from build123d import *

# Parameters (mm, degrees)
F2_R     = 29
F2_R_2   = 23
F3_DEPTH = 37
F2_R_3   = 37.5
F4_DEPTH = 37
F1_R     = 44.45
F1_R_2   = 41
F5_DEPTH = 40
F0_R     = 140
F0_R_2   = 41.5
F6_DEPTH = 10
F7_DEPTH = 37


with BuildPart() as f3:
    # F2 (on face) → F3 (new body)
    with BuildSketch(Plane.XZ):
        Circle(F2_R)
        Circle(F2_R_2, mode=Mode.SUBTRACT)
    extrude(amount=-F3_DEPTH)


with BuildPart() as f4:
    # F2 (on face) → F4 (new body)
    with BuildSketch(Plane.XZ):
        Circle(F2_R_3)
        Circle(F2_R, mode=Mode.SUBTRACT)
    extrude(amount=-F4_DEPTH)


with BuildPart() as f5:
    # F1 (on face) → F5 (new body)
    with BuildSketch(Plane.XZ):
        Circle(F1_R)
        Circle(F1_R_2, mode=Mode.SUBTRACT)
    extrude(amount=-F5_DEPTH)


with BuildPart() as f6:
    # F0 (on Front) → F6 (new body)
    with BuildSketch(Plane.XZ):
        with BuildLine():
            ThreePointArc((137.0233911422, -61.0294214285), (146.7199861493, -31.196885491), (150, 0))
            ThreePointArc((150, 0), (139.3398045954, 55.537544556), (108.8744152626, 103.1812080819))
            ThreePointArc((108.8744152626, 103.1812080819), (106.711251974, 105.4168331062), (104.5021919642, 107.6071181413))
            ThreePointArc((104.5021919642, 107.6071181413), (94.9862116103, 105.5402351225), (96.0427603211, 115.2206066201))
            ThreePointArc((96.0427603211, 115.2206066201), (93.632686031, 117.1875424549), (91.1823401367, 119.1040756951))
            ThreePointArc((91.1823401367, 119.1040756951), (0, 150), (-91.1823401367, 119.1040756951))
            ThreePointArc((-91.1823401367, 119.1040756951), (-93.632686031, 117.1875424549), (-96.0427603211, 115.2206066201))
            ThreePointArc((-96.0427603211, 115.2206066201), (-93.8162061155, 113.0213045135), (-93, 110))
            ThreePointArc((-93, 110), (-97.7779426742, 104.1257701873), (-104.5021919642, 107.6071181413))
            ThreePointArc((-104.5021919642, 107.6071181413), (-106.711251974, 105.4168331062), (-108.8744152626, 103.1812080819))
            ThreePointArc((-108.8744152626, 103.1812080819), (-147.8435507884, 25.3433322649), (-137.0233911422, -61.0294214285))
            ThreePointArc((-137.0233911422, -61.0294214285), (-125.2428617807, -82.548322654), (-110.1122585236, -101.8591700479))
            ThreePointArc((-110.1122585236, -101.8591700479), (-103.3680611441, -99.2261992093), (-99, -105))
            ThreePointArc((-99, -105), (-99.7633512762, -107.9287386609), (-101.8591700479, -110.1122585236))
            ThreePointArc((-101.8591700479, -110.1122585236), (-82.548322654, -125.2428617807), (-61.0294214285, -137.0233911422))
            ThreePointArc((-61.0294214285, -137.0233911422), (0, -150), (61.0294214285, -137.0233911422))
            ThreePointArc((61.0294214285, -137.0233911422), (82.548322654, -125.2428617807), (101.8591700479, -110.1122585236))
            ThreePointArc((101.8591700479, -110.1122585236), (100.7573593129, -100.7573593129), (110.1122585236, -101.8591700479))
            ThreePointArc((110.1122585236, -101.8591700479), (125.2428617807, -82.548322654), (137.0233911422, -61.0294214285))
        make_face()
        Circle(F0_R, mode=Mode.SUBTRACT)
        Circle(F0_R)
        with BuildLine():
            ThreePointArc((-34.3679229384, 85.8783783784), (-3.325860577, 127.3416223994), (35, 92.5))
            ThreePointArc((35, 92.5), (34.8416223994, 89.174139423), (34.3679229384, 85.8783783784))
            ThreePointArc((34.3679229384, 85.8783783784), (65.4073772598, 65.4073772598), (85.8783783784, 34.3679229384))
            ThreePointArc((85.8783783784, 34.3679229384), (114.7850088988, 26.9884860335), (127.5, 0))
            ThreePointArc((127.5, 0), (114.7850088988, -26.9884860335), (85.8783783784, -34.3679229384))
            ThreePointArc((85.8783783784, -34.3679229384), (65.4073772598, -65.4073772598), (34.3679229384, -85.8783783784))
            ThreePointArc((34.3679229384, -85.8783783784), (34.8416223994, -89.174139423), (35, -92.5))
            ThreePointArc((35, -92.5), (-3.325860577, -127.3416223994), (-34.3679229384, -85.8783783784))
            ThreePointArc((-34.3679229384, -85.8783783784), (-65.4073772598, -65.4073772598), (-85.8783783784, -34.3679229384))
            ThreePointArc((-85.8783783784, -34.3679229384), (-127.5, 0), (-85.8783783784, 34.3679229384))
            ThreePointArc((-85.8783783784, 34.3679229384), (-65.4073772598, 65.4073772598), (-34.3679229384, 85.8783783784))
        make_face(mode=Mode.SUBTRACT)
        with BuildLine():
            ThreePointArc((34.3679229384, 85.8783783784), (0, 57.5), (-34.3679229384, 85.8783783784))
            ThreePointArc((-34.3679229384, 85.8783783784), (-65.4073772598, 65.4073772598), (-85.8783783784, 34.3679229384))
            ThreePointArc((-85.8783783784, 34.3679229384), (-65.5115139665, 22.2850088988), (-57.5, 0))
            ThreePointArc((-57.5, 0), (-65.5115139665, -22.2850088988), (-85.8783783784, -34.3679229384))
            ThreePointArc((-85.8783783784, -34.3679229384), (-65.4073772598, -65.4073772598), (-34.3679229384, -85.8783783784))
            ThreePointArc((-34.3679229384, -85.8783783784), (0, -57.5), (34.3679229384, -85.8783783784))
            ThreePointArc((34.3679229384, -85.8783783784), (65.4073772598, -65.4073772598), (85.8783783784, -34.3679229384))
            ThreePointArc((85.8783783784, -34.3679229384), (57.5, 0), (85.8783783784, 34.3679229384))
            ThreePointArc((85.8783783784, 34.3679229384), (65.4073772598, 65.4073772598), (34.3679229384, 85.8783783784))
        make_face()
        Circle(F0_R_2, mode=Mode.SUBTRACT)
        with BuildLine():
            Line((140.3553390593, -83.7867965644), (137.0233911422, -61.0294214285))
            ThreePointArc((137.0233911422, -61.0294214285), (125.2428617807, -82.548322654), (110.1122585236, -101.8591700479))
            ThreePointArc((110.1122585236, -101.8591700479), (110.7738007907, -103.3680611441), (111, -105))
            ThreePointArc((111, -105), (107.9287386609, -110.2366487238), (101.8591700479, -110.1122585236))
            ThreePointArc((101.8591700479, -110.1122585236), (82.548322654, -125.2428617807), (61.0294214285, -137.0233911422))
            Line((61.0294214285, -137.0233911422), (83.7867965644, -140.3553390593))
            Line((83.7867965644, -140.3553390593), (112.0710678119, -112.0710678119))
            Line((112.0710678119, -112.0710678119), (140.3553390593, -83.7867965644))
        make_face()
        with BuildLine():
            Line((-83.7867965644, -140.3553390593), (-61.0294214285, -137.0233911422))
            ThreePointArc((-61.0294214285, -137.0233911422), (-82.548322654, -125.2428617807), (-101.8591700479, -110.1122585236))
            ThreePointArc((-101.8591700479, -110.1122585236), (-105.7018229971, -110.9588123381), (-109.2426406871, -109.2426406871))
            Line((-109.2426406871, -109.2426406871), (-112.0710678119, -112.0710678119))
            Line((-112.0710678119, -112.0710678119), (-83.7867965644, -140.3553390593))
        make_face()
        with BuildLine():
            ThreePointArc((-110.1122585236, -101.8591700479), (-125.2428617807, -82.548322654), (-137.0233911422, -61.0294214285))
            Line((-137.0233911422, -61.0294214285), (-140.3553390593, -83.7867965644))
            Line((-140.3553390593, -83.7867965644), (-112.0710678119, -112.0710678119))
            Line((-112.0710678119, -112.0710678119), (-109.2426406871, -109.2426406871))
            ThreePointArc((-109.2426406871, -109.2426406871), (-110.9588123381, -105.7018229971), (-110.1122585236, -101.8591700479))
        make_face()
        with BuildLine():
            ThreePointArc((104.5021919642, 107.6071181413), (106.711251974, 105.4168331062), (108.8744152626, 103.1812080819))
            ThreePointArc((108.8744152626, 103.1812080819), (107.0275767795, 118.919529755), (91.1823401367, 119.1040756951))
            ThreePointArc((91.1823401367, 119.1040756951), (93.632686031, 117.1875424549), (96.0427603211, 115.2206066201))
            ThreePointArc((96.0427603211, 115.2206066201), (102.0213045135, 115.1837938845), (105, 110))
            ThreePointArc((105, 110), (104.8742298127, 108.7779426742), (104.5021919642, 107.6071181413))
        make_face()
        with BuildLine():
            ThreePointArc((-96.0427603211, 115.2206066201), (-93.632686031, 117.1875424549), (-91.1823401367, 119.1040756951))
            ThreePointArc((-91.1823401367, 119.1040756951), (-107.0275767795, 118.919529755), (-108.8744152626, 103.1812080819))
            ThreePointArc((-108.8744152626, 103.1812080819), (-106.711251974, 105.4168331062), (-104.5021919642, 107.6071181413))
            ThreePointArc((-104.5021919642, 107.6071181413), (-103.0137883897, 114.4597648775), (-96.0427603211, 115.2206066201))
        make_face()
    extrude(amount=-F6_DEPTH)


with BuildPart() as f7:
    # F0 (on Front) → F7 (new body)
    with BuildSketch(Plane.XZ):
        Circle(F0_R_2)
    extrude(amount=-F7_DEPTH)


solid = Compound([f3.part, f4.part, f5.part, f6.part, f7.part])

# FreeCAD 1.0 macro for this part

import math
import FreeCAD as App
import Part
import Sketcher
from FreeCAD import Vector

doc = App.newDocument("Part")
body = doc.addObject("PartDesign::Body", "Body")

# Sketch on XZ plane
sketch1 = doc.addObject("Sketcher::SketchObject", "Sketch")
body.addObject(sketch1)
sketch1.AttachmentSupport = (doc.XZ_Plane, [""])
sketch1.MapMode = "FlatFace"
sketch1.addGeometry(Part.Circle(Vector(0, 0, 0), Vector(0, 0, 1), 29), False)
sketch1.addGeometry(Part.Circle(Vector(0, 0, 0), Vector(0, 0, 1), 23), False)
sketch1.addConstraint(Sketcher.Constraint("Coincident", 0, 3, -1, 1))
sketch1.addConstraint(Sketcher.Constraint("Coincident", 1, 3, -1, 1))
sketch1.addConstraint(Sketcher.Constraint("Diameter", 0, 58.0))
sketch1.addConstraint(Sketcher.Constraint("Diameter", 1, 46.0))
pad1 = doc.addObject("PartDesign::Pad", "Pad")
body.addObject(pad1)
pad1.Profile = sketch1
pad1.Length = 37
pad1.Reversed = True
body2 = doc.addObject("PartDesign::Body", "Body001")

# Sketch on XZ plane
sketch2 = doc.addObject("Sketcher::SketchObject", "Sketch001")
body2.addObject(sketch2)
sketch2.AttachmentSupport = (doc.getObject("XZ_Plane001"), [""])
sketch2.MapMode = "FlatFace"
sketch2.addGeometry(Part.Circle(Vector(0, 0, 0), Vector(0, 0, 1), 38), False)
sketch2.addGeometry(Part.Circle(Vector(0, 0, 0), Vector(0, 0, 1), 29), False)
sketch2.addConstraint(Sketcher.Constraint("Coincident", 0, 3, -1, 1))
sketch2.addConstraint(Sketcher.Constraint("Coincident", 1, 3, -1, 1))
sketch2.addConstraint(Sketcher.Constraint("Diameter", 0, 75.0))
sketch2.addConstraint(Sketcher.Constraint("Diameter", 1, 58.0))
pad2 = doc.addObject("PartDesign::Pad", "Pad001")
body2.addObject(pad2)
pad2.Profile = sketch2
pad2.Length = 37
pad2.Reversed = True
body3 = doc.addObject("PartDesign::Body", "Body002")

# Sketch on XZ plane
sketch3 = doc.addObject("Sketcher::SketchObject", "Sketch002")
body3.addObject(sketch3)
sketch3.AttachmentSupport = (doc.getObject("XZ_Plane002"), [""])
sketch3.MapMode = "FlatFace"
sketch3.addGeometry(Part.Circle(Vector(0, 0, 0), Vector(0, 0, 1), 44), False)
sketch3.addGeometry(Part.Circle(Vector(0, 0, 0), Vector(0, 0, 1), 41), False)
sketch3.addConstraint(Sketcher.Constraint("Coincident", 0, 3, -1, 1))
sketch3.addConstraint(Sketcher.Constraint("Coincident", 1, 3, -1, 1))
sketch3.addConstraint(Sketcher.Constraint("Diameter", 1, 82.0))
sketch3.addConstraint(Sketcher.Constraint("Diameter", 0, 88.9))
pad3 = doc.addObject("PartDesign::Pad", "Pad002")
body3.addObject(pad3)
pad3.Profile = sketch3
pad3.Length = 40
pad3.Reversed = True
body4 = doc.addObject("PartDesign::Body", "Body003")

# Sketch on XZ plane
sketch4 = doc.addObject("Sketcher::SketchObject", "Sketch003")
body4.addObject(sketch4)
sketch4.AttachmentSupport = (doc.getObject("XZ_Plane003"), [""])
sketch4.MapMode = "FlatFace"
sketch4.addGeometry(Part.ArcOfCircle(Part.Circle(Vector(0, 0, 0), Vector(0, 0, 1), 150), math.radians(-24), math.radians(0)), False)
sketch4.addGeometry(Part.ArcOfCircle(Part.Circle(Vector(0, 0, 0), Vector(0, 0, 1), 150), math.radians(0), math.radians(43)), False)
sketch4.addGeometry(Part.ArcOfCircle(Part.Circle(Vector(99, 110, 0), Vector(0, 0, 1), 12), math.radians(-35), math.radians(131)), False)
sketch4.addGeometry(Part.ArcOfCircle(Part.Circle(Vector(0, 0, 0), Vector(0, 0, 1), 150), math.radians(53), math.radians(127)), False)
sketch4.addGeometry(Part.ArcOfCircle(Part.Circle(Vector(-99, 110, 0), Vector(0, 0, 1), 12), math.radians(49), math.radians(215)), False)
sketch4.addGeometry(Part.ArcOfCircle(Part.Circle(Vector(0, 0, 0), Vector(0, 0, 1), 150), math.radians(137), math.radians(204)), False)
sketch4.addGeometry(Part.LineSegment(Vector(-137, -61, 0), Vector(-140.4, -83.8, 0)), False)
sketch4.addGeometry(Part.LineSegment(Vector(-140.4, -83.8, 0), Vector(-112.1, -112.1, 0)), False)
sketch4.addGeometry(Part.LineSegment(Vector(-112.1, -112.1, 0), Vector(-83.8, -140.4, 0)), False)
sketch4.addGeometry(Part.LineSegment(Vector(-83.8, -140.4, 0), Vector(-61, -137, 0)), False)
sketch4.addGeometry(Part.ArcOfCircle(Part.Circle(Vector(0, 0, 0), Vector(0, 0, 1), 150), math.radians(-114), math.radians(-66)), False)
sketch4.addGeometry(Part.LineSegment(Vector(61, -137, 0), Vector(83.8, -140.4, 0)), False)
sketch4.addGeometry(Part.LineSegment(Vector(83.8, -140.4, 0), Vector(112.1, -112.1, 0)), False)
sketch4.addGeometry(Part.LineSegment(Vector(112.1, -112.1, 0), Vector(140.4, -83.8, 0)), False)
sketch4.addGeometry(Part.LineSegment(Vector(140.4, -83.8, 0), Vector(137, -61, 0)), False)
sketch4.addGeometry(Part.ArcOfCircle(Part.Circle(Vector(-99, 110, 0), Vector(0, 0, 1), 6), math.radians(0), math.radians(60)), False)
sketch4.addGeometry(Part.ArcOfCircle(Part.Circle(Vector(-99, 110, 0), Vector(0, 0, 1), 6), math.radians(-156), math.radians(0)), False)
sketch4.addGeometry(Part.ArcOfCircle(Part.Circle(Vector(-99, 110, 0), Vector(0, 0, 1), 6), math.radians(60), math.radians(204)), False)
sketch4.addGeometry(Part.ArcOfCircle(Part.Circle(Vector(99, 110, 0), Vector(0, 0, 1), 6), math.radians(120), math.radians(336)), False)
sketch4.addGeometry(Part.ArcOfCircle(Part.Circle(Vector(99, 110, 0), Vector(0, 0, 1), 6), math.radians(0), math.radians(120)), False)
sketch4.addGeometry(Part.ArcOfCircle(Part.Circle(Vector(99, 110, 0), Vector(0, 0, 1), 6), math.radians(-24), math.radians(0)), False)
sketch4.addGeometry(Part.ArcOfCircle(Part.Circle(Vector(-105, -105, 0), Vector(0, 0, 1), 6), math.radians(0), math.radians(148)), False)
sketch4.addGeometry(Part.ArcOfCircle(Part.Circle(Vector(-105, -105, 0), Vector(0, 0, 1), 6), math.radians(-58), math.radians(0)), False)
sketch4.addGeometry(Part.ArcOfCircle(Part.Circle(Vector(-105, -105, 0), Vector(0, 0, 1), 6), math.radians(-135), math.radians(-58)), False)
sketch4.addGeometry(Part.ArcOfCircle(Part.Circle(Vector(-105, -105, 0), Vector(0, 0, 1), 6), math.radians(148), math.radians(225)), False)
sketch4.addGeometry(Part.ArcOfCircle(Part.Circle(Vector(105, -105, 0), Vector(0, 0, 1), 6), math.radians(0), math.radians(32)), False)
sketch4.addGeometry(Part.ArcOfCircle(Part.Circle(Vector(105, -105, 0), Vector(0, 0, 1), 6), math.radians(32), math.radians(360)), False)
sketch4.addGeometry(Part.ArcOfCircle(Part.Circle(Vector(0, -92.5, 0), Vector(0, 0, 1), 35), math.radians(11), math.radians(360)), False)
sketch4.addGeometry(Part.ArcOfCircle(Part.Circle(Vector(0, -92.5, 0), Vector(0, 0, 1), 35), math.radians(0), math.radians(10.91)), False)
sketch4.addGeometry(Part.Circle(Vector(-92.5, 0, 0), Vector(0, 0, 1), 35), False)
sketch4.addGeometry(Part.Circle(Vector(0, 0, 0), Vector(0, 0, 1), 41.5), False)
sketch4.addGeometry(Part.ArcOfCircle(Part.Circle(Vector(0, 92.5, 0), Vector(0, 0, 1), 35), math.radians(-10.91), math.radians(0)), False)
sketch4.addGeometry(Part.ArcOfCircle(Part.Circle(Vector(0, 92.5, 0), Vector(0, 0, 1), 35), math.radians(0), math.radians(349)), False)
sketch4.addGeometry(Part.Circle(Vector(92.5, 0, 0), Vector(0, 0, 1), 35), False)
sketch4.addConstraint(Sketcher.Constraint("Tangent", 0, 2, 1, 1))
sketch4.addConstraint(Sketcher.Constraint("Coincident", 1, 2, 2, 1))
sketch4.addConstraint(Sketcher.Constraint("Coincident", 2, 2, 3, 1))
sketch4.addConstraint(Sketcher.Constraint("Coincident", 3, 2, 4, 1))
sketch4.addConstraint(Sketcher.Constraint("Coincident", 4, 2, 5, 1))
sketch4.addConstraint(Sketcher.Constraint("Coincident", 5, 2, 6, 1))
sketch4.addConstraint(Sketcher.Constraint("Coincident", 6, 2, 7, 1))
sketch4.addConstraint(Sketcher.Constraint("Coincident", 7, 2, 8, 1))
sketch4.addConstraint(Sketcher.Constraint("Coincident", 8, 2, 9, 1))
sketch4.addConstraint(Sketcher.Constraint("Coincident", 9, 2, 10, 1))
sketch4.addConstraint(Sketcher.Constraint("Coincident", 10, 2, 11, 1))
sketch4.addConstraint(Sketcher.Constraint("Coincident", 11, 2, 12, 1))
sketch4.addConstraint(Sketcher.Constraint("Coincident", 12, 2, 13, 1))
sketch4.addConstraint(Sketcher.Constraint("Coincident", 13, 2, 14, 1))
sketch4.addConstraint(Sketcher.Constraint("Coincident", 14, 2, 0, 1))
sketch4.addConstraint(Sketcher.Constraint("Tangent", 15, 1, 16, 2))
sketch4.addConstraint(Sketcher.Constraint("Tangent", 16, 1, 17, 2))
sketch4.addConstraint(Sketcher.Constraint("Tangent", 17, 1, 15, 2))
sketch4.addConstraint(Sketcher.Constraint("Tangent", 18, 1, 19, 2))
sketch4.addConstraint(Sketcher.Constraint("Tangent", 19, 1, 20, 2))
sketch4.addConstraint(Sketcher.Constraint("Tangent", 20, 1, 18, 2))
sketch4.addConstraint(Sketcher.Constraint("Tangent", 21, 1, 22, 2))
sketch4.addConstraint(Sketcher.Constraint("Tangent", 22, 1, 23, 2))
sketch4.addConstraint(Sketcher.Constraint("Tangent", 23, 1, 24, 2))
sketch4.addConstraint(Sketcher.Constraint("Tangent", 24, 1, 21, 2))
sketch4.addConstraint(Sketcher.Constraint("Tangent", 25, 1, 26, 2))
sketch4.addConstraint(Sketcher.Constraint("Coincident", 26, 1, 25, 2))
sketch4.addConstraint(Sketcher.Constraint("Tangent", 27, 1, 28, 2))
sketch4.addConstraint(Sketcher.Constraint("Coincident", 28, 1, 27, 2))
sketch4.addConstraint(Sketcher.Constraint("Tangent", 31, 1, 32, 2))
sketch4.addConstraint(Sketcher.Constraint("Coincident", 32, 1, 31, 2))
sketch4.addConstraint(Sketcher.Constraint("Coincident", 0, 3, -1, 1))
sketch4.addConstraint(Sketcher.Constraint("Coincident", 3, 3, -1, 1))
sketch4.addConstraint(Sketcher.Constraint("Coincident", 5, 3, -1, 1))
sketch4.addConstraint(Sketcher.Constraint("Coincident", 10, 3, -1, 1))
sketch4.addConstraint(Sketcher.Constraint("Coincident", 30, 3, -1, 1))
sketch4.addConstraint(Sketcher.Constraint("Coincident", 15, 3, 4, 3))
sketch4.addConstraint(Sketcher.Constraint("Coincident", 18, 3, 2, 3))
sketch4.addConstraint(Sketcher.Constraint("Equal", 0, 1))
sketch4.addConstraint(Sketcher.Constraint("Equal", 1, 3))
sketch4.addConstraint(Sketcher.Constraint("Equal", 2, 4))
sketch4.addConstraint(Sketcher.Constraint("Equal", 3, 5))
sketch4.addConstraint(Sketcher.Constraint("Equal", 5, 10))
sketch4.addConstraint(Sketcher.Constraint("Equal", 17, 18))
sketch4.addConstraint(Sketcher.Constraint("Equal", 20, 21))
sketch4.addConstraint(Sketcher.Constraint("Equal", 21, 22))
sketch4.addConstraint(Sketcher.Constraint("Equal", 24, 25))
sketch4.addConstraint(Sketcher.Constraint("Equal", 28, 29))
sketch4.addConstraint(Sketcher.Constraint("Equal", 29, 31))
sketch4.addConstraint(Sketcher.Constraint("Equal", 32, 33))
sketch4.addConstraint(Sketcher.Constraint("Symmetric", 27, 3, 31, 3, -1, 1))
sketch4.addConstraint(Sketcher.Constraint("Symmetric", 29, 3, 33, 3, -1, 1))
sketch4.addConstraint(Sketcher.Constraint("Symmetric", 2, 3, 4, 3, -2))
sketch4.addConstraint(Sketcher.Constraint("Symmetric", 21, 3, 25, 3, -2))
sketch4.addConstraint(Sketcher.Constraint("Symmetric", 8, 2, 11, 2, -2))
sketch4.addConstraint(Sketcher.Constraint("Symmetric", 7, 2, 12, 2, -2))
sketch4.addConstraint(Sketcher.Constraint("Symmetric", 6, 2, 13, 2, -2))
sketch4.addConstraint(Sketcher.Constraint("Symmetric", 27, 1, 31, 1, -1))
sketch4.addConstraint(Sketcher.Constraint("PointOnObject", 29, 3, -1))
sketch4.addConstraint(Sketcher.Constraint("PointOnObject", 0, 2, -1))
sketch4.addConstraint(Sketcher.Constraint("Parallel", 7, 8))
sketch4.addConstraint(Sketcher.Constraint("Perpendicular", 6, 11))
sketch4.addConstraint(Sketcher.Constraint("Perpendicular", 8, 12))
sketch4.addConstraint(Sketcher.Constraint("Perpendicular", 9, 14))
sketch4.addConstraint(Sketcher.Constraint("Horizontal", 9, 2, 10, 2))
sketch4.addConstraint(Sketcher.Constraint("Horizontal", 20, 3, 15, 1))
sketch4.addConstraint(Sketcher.Constraint("Horizontal", 17, 1, 18, 1))
sketch4.addConstraint(Sketcher.Constraint("Horizontal", 15, 1, 19, 1))
sketch4.addConstraint(Sketcher.Constraint("Horizontal", 16, 1, 20, 1))
sketch4.addConstraint(Sketcher.Constraint("Horizontal", 26, 3, 21, 1))
sketch4.addConstraint(Sketcher.Constraint("Horizontal", 21, 1, 25, 1))
sketch4.addConstraint(Sketcher.Constraint("Horizontal", 24, 1, 26, 1))
sketch4.addConstraint(Sketcher.Constraint("Horizontal", 27, 3, 28, 1))
sketch4.addConstraint(Sketcher.Constraint("Horizontal", 31, 3, 32, 1))
sketch4.addConstraint(Sketcher.Constraint("Vertical", 26, 3, 19, 1))
sketch4.addConstraint(Sketcher.Constraint("Equal", 7, 8))
sketch4.addConstraint(Sketcher.Constraint("Equal", 6, 9))
sketch4.addConstraint(Sketcher.Constraint("Diameter", 29, 70.0))
sketch4.addConstraint(Sketcher.Constraint("Diameter", 30, 83.0))
sketch4.addConstraint(Sketcher.Constraint("Radius", 0, 150.0))
sketch4.addConstraint(Sketcher.Constraint("Radius", 2, 12.0))
sketch4.addConstraint(Sketcher.Constraint("Radius", 15, 6.0))
sketch4.addConstraint(Sketcher.Constraint("Distance", 6, 23.0))
sketch4.addConstraint(Sketcher.Constraint("Distance", 7, 40.0))
sketch4.addConstraint(Sketcher.Constraint("DistanceX", -1, 1, 2, 3, 99.0))
sketch4.addConstraint(Sketcher.Constraint("DistanceY", -1, 1, 2, 3, 110.0))
sketch4.addConstraint(Sketcher.Constraint("DistanceY", 21, 3, -1, 1, 105.0))
sketch4.addConstraint(Sketcher.Constraint("DistanceY", 27, 3, -1, 1, 92.5))
sketch4.addConstraint(Sketcher.Constraint("DistanceX", 29, 3, -1, 1, 92.5))
sketch4.addConstraint(Sketcher.Constraint("DistanceX", 27, 1, 10, 2, 26.661498))
sketch4.addConstraint(Sketcher.Constraint("DistanceX", 6, 2, -1, 1, 140.355339))
sketch4.addConstraint(Sketcher.Constraint("DistanceX", 16, 1, -1, 1, 104.502192))
sketch4.addConstraint(Sketcher.Constraint("DistanceX", 17, 1, -1, 1, 96.04276))
sketch4.addConstraint(Sketcher.Constraint("DistanceX", 22, 1, -1, 1, 101.85917))
sketch4.addConstraint(Sketcher.Constraint("DistanceX", 23, 1, -1, 1, 109.242641))
sketch4.addConstraint(Sketcher.Constraint("DistanceX", 24, 1, -1, 1, 110.112259))
pad4 = doc.addObject("PartDesign::Pad", "Pad003")
body4.addObject(pad4)
pad4.Profile = sketch4
pad4.Length = 10
pad4.Reversed = True
body5 = doc.addObject("PartDesign::Body", "Body004")

# Sketch on XZ plane
sketch5 = doc.addObject("Sketcher::SketchObject", "Sketch004")
body5.addObject(sketch5)
sketch5.AttachmentSupport = (doc.getObject("XZ_Plane004"), [""])
sketch5.MapMode = "FlatFace"
sketch5.addGeometry(Part.Circle(Vector(0, 0, 0), Vector(0, 0, 1), 42), False)
sketch5.addConstraint(Sketcher.Constraint("Coincident", 0, 3, -1, 1))
sketch5.addConstraint(Sketcher.Constraint("Diameter", 0, 83.0))
pad5 = doc.addObject("PartDesign::Pad", "Pad004")
body5.addObject(pad5)
pad5.Profile = sketch5
pad5.Length = 37
pad5.Reversed = True

doc.recompute()
